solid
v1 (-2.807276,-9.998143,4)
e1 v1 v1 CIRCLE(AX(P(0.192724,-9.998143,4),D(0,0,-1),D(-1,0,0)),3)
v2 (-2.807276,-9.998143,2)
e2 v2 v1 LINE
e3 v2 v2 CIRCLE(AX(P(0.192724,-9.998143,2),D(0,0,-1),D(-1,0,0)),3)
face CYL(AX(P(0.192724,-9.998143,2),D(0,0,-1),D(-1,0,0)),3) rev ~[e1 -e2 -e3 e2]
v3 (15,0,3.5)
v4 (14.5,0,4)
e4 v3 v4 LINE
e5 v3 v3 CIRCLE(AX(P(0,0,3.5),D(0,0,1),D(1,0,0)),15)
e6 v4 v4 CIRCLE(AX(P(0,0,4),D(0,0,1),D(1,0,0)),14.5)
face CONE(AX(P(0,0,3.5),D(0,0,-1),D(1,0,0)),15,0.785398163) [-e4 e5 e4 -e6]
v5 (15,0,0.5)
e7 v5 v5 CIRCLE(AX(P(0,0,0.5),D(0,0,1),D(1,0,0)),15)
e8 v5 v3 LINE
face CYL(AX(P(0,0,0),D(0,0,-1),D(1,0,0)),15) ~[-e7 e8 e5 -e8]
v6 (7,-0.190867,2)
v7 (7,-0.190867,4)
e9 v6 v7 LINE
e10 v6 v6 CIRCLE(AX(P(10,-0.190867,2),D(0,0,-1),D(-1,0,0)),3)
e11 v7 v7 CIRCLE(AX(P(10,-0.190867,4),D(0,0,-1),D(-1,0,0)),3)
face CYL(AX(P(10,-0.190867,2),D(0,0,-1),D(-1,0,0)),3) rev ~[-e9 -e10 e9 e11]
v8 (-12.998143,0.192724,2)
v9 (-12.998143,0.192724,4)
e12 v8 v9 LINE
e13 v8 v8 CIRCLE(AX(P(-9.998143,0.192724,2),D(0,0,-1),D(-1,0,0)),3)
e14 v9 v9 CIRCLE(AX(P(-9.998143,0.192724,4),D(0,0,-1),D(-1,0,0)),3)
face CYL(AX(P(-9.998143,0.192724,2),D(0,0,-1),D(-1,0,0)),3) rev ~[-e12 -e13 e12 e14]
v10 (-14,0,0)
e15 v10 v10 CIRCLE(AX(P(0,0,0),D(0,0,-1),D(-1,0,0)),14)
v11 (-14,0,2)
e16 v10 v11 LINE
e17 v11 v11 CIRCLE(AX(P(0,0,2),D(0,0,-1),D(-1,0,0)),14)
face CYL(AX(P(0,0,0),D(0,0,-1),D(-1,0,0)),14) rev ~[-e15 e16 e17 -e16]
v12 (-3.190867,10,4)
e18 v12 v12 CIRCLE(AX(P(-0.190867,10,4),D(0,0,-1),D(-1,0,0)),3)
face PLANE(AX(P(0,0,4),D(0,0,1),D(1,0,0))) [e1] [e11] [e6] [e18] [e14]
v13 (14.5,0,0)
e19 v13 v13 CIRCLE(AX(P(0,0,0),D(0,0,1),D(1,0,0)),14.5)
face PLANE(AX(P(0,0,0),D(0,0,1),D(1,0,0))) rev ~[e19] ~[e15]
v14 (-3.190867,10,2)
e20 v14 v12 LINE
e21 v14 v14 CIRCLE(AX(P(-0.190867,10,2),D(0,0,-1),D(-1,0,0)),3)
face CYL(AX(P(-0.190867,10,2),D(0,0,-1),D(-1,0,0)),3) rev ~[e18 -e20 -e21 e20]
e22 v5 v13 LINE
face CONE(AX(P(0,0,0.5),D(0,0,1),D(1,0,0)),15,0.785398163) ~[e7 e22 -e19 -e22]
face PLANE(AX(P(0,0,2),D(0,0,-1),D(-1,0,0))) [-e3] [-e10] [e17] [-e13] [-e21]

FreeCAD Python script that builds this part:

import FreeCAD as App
import Part
import Sketcher


def edges_at(feature, points):
    """Names of the edges that pass closest to the given points."""
    edges = feature.Shape.Edges
    near = lambda p: min(range(len(edges)), key=lambda i: edges[i].distToShape(Part.Vertex(*p))[0])
    return sorted({f"Edge{near(p) + 1}" for p in points})

doc = App.newDocument("Part")
body = doc.addObject("PartDesign::Body", "Body")

sketch1 = body.newObject("Sketcher::SketchObject", "Sketch")
sketch1.AttachmentSupport = (doc.getObject("XY_Plane"), [""])
sketch1.MapMode = "FlatFace"
sketch1.addGeometry(Part.Circle(App.Vector(0, 0, 0), App.Vector(0, 0, 1), 15), False)
sketch1.addConstraint([
    Sketcher.Constraint("Coincident", 0, 3, -1, 1),
    Sketcher.Constraint("Diameter", 0, 30.0),
])
pad1 = body.newObject("PartDesign::Pad", "Pad")
pad1.Profile = sketch1
pad1.Length = 4

sketch2 = body.newObject("Sketcher::SketchObject", "Sketch001")
sketch2.AttachmentSupport = (doc.getObject("XY_Plane"), [""])
sketch2.MapMode = "FlatFace"
sketch2.addGeometry(Part.Circle(App.Vector(0, 0, 0), App.Vector(0, 0, 1), 14), False)
sketch2.addConstraint([
    Sketcher.Constraint("Coincident", 0, 3, -1, 1),
    Sketcher.Constraint("Diameter", 0, 28.0),
])
pocket1 = body.newObject("PartDesign::Pocket", "Pocket")
pocket1.Profile = sketch2
pocket1.Length = 2
pocket1.Reversed = True

sketch3 = body.newObject("Sketcher::SketchObject", "Sketch002")
sketch3.AttachmentSupport = (doc.getObject("XY_Plane"), [""])
sketch3.MapMode = "FlatFace"
sketch3.AttachmentOffset = App.Placement(App.Vector(0, 0, 2), App.Rotation())
sketch3.addGeometry([
    Part.Circle(App.Vector(-9.998143, 0.192724, 0), App.Vector(0, 0, 1), 3),
    Part.Circle(App.Vector(0.192724, -9.998143, 0), App.Vector(0, 0, 1), 3),
    Part.Circle(App.Vector(-0.190867, 10, 0), App.Vector(0, 0, 1), 3),
    Part.Circle(App.Vector(10, -0.190867, 0), App.Vector(0, 0, 1), 3),
], False)
sketch3.addConstraint([
    Sketcher.Constraint("Equal", 0, 1),
    Sketcher.Constraint("Equal", 1, 2),
    Sketcher.Constraint("Equal", 2, 3),
    Sketcher.Constraint("Diameter", 0, 6.0),
    Sketcher.Constraint("DistanceY", -1, 1, 2, 3, 10.0),
    Sketcher.Constraint("DistanceX", -1, 1, 3, 3, 10.0),
    Sketcher.Constraint("DistanceX", 2, 3, 1, 3, 0.383591),
    Sketcher.Constraint("DistanceY", 3, 3, 0, 3, 0.383591),
    Sketcher.Constraint("DistanceX", 0, 3, -1, 1, 9.998143),
    Sketcher.Constraint("DistanceY", -1, 1, 0, 3, 0.192724),
    Sketcher.Constraint("DistanceX", -1, 1, 1, 3, 0.192724),
    Sketcher.Constraint("DistanceY", 1, 3, -1, 1, 9.998143),
])
pocket2 = body.newObject("PartDesign::Pocket", "Pocket001")
pocket2.Profile = sketch3
pocket2.Type = "ThroughAll"
pocket2.Reversed = True
doc.recompute()

chamfer = body.newObject("PartDesign::Chamfer", "Chamfer")
chamfer.Base = (pocket2, edges_at(pocket2, [(-15, 0, 4)]))
chamfer.Size = 0.5
doc.recompute()

chamfer2 = body.newObject("PartDesign::Chamfer", "Chamfer001")
chamfer2.Base = (chamfer, edges_at(chamfer, [(-15, 0, 0)]))
chamfer2.Size = 0.5

doc.recompute()
